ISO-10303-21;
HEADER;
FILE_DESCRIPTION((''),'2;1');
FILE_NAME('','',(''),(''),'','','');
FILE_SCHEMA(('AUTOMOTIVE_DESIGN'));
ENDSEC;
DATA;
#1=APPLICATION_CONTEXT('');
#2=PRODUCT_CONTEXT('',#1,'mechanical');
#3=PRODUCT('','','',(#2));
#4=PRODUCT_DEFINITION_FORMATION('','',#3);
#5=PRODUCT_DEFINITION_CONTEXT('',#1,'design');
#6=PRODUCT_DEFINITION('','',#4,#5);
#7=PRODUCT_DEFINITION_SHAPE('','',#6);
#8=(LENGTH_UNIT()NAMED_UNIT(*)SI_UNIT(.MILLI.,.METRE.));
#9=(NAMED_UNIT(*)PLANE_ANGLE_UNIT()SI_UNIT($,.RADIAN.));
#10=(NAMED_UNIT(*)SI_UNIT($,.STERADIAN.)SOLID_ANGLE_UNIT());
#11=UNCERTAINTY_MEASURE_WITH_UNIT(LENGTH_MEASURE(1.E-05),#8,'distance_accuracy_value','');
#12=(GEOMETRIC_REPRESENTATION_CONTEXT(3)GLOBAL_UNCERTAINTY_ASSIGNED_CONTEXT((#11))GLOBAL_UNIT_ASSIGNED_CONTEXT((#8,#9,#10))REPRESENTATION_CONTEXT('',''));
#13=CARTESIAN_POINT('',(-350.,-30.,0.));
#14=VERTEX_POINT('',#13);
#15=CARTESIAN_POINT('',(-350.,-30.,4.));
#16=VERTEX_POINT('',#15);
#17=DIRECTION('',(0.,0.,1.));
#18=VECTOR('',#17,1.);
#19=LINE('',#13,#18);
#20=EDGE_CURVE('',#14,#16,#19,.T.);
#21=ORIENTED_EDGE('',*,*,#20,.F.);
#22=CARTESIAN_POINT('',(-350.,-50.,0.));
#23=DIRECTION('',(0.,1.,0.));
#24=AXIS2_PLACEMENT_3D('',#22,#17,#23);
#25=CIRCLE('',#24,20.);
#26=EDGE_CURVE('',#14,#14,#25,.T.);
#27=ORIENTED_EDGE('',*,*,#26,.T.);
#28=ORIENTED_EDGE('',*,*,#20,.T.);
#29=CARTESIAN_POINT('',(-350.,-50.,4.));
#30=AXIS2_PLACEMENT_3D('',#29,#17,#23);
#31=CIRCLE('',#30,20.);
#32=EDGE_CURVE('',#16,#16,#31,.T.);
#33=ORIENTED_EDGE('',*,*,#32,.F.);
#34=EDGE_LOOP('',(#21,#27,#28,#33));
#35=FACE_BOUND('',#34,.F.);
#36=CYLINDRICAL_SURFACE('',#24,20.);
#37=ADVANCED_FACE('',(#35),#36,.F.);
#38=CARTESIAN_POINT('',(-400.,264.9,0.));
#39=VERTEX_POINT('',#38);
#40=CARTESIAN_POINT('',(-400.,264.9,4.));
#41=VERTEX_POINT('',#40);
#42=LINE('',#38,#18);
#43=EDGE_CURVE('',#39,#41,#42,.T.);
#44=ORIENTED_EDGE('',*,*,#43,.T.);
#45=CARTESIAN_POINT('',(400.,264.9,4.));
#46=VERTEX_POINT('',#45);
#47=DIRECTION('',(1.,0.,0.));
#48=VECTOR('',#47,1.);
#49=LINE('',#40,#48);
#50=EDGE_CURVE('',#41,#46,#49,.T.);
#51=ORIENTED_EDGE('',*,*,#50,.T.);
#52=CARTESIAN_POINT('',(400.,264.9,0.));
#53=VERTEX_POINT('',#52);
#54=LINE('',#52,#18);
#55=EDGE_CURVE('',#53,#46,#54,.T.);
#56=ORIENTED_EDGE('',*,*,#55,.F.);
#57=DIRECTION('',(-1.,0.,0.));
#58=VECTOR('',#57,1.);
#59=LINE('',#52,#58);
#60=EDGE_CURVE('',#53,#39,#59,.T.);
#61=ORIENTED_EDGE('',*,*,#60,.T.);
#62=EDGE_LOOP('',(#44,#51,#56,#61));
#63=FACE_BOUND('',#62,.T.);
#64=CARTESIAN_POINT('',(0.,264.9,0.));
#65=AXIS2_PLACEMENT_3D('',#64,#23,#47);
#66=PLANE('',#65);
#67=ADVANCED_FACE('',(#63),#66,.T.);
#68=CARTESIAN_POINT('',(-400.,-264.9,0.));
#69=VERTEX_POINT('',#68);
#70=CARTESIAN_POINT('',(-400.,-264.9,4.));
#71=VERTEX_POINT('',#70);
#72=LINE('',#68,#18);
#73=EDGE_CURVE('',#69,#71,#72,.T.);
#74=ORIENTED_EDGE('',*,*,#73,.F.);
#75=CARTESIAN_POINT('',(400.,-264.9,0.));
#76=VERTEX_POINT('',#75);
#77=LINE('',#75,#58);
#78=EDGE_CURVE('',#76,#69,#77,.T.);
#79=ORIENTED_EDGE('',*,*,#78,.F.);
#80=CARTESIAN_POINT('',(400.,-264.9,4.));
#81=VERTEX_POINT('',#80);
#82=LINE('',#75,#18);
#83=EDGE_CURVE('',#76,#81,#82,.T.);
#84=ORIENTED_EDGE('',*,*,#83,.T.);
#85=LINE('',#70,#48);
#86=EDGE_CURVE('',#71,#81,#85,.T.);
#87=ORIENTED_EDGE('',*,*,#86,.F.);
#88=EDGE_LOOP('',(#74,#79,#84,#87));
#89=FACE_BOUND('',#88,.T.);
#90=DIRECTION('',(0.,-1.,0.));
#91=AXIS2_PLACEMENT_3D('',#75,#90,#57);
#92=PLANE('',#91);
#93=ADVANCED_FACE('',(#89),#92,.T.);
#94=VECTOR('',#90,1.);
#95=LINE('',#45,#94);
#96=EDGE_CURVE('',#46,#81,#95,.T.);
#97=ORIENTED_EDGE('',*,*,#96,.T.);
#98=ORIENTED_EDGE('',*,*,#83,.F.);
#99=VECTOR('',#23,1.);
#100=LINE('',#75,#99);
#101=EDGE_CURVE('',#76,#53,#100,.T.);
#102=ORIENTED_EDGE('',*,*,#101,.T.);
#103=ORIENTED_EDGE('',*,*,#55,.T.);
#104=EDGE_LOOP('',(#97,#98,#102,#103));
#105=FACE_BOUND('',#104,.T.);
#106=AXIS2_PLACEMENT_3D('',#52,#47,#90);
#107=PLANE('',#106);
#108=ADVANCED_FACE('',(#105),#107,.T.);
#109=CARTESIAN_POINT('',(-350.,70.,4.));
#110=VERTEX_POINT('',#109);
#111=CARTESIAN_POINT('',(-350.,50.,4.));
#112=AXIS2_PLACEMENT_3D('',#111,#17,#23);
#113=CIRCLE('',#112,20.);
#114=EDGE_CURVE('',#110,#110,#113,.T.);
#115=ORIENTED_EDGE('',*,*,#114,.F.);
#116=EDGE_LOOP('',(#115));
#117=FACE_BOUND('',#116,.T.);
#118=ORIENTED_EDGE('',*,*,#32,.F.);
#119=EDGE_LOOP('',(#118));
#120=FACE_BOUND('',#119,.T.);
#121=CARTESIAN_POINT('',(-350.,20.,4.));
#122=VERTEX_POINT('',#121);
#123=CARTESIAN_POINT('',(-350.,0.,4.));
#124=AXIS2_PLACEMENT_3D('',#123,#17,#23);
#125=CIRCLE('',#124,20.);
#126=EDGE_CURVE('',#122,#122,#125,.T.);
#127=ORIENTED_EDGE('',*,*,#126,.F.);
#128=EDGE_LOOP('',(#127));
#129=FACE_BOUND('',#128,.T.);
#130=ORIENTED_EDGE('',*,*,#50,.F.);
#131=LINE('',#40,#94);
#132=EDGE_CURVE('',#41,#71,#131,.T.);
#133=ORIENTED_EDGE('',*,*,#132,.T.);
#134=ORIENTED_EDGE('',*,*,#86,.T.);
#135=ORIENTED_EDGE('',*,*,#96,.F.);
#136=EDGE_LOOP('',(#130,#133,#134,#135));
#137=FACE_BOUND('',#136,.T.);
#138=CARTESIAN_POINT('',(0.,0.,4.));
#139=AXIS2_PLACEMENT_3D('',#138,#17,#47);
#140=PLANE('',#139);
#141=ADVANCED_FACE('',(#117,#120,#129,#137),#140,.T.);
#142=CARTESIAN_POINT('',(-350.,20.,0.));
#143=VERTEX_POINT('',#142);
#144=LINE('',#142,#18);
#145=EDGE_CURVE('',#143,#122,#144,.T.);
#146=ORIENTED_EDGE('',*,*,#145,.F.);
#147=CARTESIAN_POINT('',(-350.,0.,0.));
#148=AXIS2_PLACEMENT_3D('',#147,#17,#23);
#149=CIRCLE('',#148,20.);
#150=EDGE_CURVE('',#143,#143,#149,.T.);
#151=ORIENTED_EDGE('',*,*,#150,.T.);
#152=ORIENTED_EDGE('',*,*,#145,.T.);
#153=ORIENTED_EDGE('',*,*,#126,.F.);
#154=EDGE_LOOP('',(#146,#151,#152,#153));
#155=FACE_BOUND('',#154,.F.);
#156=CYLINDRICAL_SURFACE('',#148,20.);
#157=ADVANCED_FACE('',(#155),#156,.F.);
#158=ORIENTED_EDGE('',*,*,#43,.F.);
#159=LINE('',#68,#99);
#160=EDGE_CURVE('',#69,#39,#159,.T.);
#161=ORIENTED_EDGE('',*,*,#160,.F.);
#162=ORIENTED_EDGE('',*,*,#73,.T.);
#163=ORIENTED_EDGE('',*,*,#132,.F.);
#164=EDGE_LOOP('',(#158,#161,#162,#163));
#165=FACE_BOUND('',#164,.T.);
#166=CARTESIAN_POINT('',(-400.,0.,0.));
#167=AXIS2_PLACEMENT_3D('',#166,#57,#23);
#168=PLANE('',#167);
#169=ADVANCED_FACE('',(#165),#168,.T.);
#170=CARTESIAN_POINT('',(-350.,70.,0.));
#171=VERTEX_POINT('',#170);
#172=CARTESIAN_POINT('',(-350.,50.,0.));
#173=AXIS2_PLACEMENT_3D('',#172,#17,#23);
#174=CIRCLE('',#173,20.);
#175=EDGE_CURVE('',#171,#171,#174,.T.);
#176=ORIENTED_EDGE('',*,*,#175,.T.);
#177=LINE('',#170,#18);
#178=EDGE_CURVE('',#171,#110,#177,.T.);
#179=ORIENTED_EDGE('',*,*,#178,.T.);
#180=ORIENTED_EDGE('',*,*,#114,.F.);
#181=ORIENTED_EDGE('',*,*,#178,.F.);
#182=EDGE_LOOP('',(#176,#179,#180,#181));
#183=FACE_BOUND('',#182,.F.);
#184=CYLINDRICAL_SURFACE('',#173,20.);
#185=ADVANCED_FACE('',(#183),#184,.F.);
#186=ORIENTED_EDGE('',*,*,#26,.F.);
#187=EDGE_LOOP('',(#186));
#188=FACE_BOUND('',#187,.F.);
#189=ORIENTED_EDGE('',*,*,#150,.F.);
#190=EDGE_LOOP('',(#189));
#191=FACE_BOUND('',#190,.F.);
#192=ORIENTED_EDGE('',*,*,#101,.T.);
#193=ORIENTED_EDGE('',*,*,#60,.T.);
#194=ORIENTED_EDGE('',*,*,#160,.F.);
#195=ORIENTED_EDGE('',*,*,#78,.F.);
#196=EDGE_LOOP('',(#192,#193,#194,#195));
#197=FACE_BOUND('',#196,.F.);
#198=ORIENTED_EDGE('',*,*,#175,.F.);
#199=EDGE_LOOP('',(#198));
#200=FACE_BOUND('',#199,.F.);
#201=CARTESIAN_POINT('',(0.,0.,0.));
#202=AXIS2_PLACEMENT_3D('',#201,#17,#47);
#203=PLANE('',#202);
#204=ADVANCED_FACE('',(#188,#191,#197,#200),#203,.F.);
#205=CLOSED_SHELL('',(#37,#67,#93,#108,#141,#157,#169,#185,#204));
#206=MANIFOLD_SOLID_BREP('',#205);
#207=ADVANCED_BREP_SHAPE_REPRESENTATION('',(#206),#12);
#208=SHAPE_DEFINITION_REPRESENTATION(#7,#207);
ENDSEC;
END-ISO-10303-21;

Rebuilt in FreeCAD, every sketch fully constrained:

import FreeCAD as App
import Part
import Sketcher

V = App.Vector


def add_polygon(sketch, points):
    """Adds a closed chain of lines whose ends are joined by coincident constraints."""
    first, n = sketch.GeometryCount, len(points)
    for a, b in zip(points, points[1:] + points[:1]):
        sketch.addGeometry(Part.LineSegment(App.Vector(*a, 0), App.Vector(*b, 0)), False)
    for i in range(n):
        sketch.addConstraint(Sketcher.Constraint("Coincident", first + i, 2, first + (i + 1) % n, 1))

doc = App.newDocument("Part")
body = doc.addObject("PartDesign::Body", "Body")

# Sketch on XY plane
sketch1 = body.newObject("Sketcher::SketchObject", "Sketch")
sketch1.AttachmentSupport = (doc.getObject("XY_Plane"), [""])
sketch1.MapMode = "FlatFace"
add_polygon(sketch1, [(400, 264.9), (-400, 264.9), (-400, -264.9), (400, -264.9)])  # lines 0-3
sketch1.addConstraint(Sketcher.Constraint("Horizontal", 0))
sketch1.addConstraint(Sketcher.Constraint("Vertical", 1))
sketch1.addConstraint(Sketcher.Constraint("Horizontal", 2))
sketch1.addConstraint(Sketcher.Constraint("Vertical", 3))
sketch1.addConstraint(Sketcher.Constraint("Symmetric", 0, 2, 2, 2, -1, 1))
sketch1.addConstraint(Sketcher.Constraint("DistanceX", 0, 2, 0, 1, 800.0))
sketch1.addConstraint(Sketcher.Constraint("DistanceY", 1, 2, 1, 1, 529.8))
pad1 = body.newObject("PartDesign::Pad", "Pad")
pad1.Profile = sketch1
pad1.Length = 4

# Sketch on XY plane
sketch2 = body.newObject("Sketcher::SketchObject", "Sketch001")
sketch2.AttachmentSupport = (doc.getObject("XY_Plane"), [""])
sketch2.MapMode = "FlatFace"
sketch2.addGeometry(Part.Circle(V(-350, 50, 0), V(0, 0, 1), 20), False)
sketch2.addGeometry(Part.Circle(V(-350, 0, 0), V(0, 0, 1), 20), False)
sketch2.addGeometry(Part.Circle(V(-350, -50, 0), V(0, 0, 1), 20), False)
sketch2.addConstraint(Sketcher.Constraint("Equal", 0, 1))
sketch2.addConstraint(Sketcher.Constraint("Equal", 1, 2))
sketch2.addConstraint(Sketcher.Constraint("Symmetric", 0, 3, 2, 3, -1))
sketch2.addConstraint(Sketcher.Constraint("PointOnObject", 1, 3, -1))
sketch2.addConstraint(Sketcher.Constraint("Vertical", 0, 3, 1, 3))
sketch2.addConstraint(Sketcher.Constraint("Diameter", 0, 40.0))
sketch2.addConstraint(Sketcher.Constraint("DistanceX", 0, 3, -1, 1, 350.0))
sketch2.addConstraint(Sketcher.Constraint("DistanceY", -1, 1, 0, 3, 50.0))
doc.recompute()
hole = body.newObject("PartDesign::Hole", "Hole")
hole.Profile = sketch2
hole.ThreadType = "None"
hole.Diameter = 40
hole.DepthType = "ThroughAll"
hole.Reversed = True

doc.recompute()
